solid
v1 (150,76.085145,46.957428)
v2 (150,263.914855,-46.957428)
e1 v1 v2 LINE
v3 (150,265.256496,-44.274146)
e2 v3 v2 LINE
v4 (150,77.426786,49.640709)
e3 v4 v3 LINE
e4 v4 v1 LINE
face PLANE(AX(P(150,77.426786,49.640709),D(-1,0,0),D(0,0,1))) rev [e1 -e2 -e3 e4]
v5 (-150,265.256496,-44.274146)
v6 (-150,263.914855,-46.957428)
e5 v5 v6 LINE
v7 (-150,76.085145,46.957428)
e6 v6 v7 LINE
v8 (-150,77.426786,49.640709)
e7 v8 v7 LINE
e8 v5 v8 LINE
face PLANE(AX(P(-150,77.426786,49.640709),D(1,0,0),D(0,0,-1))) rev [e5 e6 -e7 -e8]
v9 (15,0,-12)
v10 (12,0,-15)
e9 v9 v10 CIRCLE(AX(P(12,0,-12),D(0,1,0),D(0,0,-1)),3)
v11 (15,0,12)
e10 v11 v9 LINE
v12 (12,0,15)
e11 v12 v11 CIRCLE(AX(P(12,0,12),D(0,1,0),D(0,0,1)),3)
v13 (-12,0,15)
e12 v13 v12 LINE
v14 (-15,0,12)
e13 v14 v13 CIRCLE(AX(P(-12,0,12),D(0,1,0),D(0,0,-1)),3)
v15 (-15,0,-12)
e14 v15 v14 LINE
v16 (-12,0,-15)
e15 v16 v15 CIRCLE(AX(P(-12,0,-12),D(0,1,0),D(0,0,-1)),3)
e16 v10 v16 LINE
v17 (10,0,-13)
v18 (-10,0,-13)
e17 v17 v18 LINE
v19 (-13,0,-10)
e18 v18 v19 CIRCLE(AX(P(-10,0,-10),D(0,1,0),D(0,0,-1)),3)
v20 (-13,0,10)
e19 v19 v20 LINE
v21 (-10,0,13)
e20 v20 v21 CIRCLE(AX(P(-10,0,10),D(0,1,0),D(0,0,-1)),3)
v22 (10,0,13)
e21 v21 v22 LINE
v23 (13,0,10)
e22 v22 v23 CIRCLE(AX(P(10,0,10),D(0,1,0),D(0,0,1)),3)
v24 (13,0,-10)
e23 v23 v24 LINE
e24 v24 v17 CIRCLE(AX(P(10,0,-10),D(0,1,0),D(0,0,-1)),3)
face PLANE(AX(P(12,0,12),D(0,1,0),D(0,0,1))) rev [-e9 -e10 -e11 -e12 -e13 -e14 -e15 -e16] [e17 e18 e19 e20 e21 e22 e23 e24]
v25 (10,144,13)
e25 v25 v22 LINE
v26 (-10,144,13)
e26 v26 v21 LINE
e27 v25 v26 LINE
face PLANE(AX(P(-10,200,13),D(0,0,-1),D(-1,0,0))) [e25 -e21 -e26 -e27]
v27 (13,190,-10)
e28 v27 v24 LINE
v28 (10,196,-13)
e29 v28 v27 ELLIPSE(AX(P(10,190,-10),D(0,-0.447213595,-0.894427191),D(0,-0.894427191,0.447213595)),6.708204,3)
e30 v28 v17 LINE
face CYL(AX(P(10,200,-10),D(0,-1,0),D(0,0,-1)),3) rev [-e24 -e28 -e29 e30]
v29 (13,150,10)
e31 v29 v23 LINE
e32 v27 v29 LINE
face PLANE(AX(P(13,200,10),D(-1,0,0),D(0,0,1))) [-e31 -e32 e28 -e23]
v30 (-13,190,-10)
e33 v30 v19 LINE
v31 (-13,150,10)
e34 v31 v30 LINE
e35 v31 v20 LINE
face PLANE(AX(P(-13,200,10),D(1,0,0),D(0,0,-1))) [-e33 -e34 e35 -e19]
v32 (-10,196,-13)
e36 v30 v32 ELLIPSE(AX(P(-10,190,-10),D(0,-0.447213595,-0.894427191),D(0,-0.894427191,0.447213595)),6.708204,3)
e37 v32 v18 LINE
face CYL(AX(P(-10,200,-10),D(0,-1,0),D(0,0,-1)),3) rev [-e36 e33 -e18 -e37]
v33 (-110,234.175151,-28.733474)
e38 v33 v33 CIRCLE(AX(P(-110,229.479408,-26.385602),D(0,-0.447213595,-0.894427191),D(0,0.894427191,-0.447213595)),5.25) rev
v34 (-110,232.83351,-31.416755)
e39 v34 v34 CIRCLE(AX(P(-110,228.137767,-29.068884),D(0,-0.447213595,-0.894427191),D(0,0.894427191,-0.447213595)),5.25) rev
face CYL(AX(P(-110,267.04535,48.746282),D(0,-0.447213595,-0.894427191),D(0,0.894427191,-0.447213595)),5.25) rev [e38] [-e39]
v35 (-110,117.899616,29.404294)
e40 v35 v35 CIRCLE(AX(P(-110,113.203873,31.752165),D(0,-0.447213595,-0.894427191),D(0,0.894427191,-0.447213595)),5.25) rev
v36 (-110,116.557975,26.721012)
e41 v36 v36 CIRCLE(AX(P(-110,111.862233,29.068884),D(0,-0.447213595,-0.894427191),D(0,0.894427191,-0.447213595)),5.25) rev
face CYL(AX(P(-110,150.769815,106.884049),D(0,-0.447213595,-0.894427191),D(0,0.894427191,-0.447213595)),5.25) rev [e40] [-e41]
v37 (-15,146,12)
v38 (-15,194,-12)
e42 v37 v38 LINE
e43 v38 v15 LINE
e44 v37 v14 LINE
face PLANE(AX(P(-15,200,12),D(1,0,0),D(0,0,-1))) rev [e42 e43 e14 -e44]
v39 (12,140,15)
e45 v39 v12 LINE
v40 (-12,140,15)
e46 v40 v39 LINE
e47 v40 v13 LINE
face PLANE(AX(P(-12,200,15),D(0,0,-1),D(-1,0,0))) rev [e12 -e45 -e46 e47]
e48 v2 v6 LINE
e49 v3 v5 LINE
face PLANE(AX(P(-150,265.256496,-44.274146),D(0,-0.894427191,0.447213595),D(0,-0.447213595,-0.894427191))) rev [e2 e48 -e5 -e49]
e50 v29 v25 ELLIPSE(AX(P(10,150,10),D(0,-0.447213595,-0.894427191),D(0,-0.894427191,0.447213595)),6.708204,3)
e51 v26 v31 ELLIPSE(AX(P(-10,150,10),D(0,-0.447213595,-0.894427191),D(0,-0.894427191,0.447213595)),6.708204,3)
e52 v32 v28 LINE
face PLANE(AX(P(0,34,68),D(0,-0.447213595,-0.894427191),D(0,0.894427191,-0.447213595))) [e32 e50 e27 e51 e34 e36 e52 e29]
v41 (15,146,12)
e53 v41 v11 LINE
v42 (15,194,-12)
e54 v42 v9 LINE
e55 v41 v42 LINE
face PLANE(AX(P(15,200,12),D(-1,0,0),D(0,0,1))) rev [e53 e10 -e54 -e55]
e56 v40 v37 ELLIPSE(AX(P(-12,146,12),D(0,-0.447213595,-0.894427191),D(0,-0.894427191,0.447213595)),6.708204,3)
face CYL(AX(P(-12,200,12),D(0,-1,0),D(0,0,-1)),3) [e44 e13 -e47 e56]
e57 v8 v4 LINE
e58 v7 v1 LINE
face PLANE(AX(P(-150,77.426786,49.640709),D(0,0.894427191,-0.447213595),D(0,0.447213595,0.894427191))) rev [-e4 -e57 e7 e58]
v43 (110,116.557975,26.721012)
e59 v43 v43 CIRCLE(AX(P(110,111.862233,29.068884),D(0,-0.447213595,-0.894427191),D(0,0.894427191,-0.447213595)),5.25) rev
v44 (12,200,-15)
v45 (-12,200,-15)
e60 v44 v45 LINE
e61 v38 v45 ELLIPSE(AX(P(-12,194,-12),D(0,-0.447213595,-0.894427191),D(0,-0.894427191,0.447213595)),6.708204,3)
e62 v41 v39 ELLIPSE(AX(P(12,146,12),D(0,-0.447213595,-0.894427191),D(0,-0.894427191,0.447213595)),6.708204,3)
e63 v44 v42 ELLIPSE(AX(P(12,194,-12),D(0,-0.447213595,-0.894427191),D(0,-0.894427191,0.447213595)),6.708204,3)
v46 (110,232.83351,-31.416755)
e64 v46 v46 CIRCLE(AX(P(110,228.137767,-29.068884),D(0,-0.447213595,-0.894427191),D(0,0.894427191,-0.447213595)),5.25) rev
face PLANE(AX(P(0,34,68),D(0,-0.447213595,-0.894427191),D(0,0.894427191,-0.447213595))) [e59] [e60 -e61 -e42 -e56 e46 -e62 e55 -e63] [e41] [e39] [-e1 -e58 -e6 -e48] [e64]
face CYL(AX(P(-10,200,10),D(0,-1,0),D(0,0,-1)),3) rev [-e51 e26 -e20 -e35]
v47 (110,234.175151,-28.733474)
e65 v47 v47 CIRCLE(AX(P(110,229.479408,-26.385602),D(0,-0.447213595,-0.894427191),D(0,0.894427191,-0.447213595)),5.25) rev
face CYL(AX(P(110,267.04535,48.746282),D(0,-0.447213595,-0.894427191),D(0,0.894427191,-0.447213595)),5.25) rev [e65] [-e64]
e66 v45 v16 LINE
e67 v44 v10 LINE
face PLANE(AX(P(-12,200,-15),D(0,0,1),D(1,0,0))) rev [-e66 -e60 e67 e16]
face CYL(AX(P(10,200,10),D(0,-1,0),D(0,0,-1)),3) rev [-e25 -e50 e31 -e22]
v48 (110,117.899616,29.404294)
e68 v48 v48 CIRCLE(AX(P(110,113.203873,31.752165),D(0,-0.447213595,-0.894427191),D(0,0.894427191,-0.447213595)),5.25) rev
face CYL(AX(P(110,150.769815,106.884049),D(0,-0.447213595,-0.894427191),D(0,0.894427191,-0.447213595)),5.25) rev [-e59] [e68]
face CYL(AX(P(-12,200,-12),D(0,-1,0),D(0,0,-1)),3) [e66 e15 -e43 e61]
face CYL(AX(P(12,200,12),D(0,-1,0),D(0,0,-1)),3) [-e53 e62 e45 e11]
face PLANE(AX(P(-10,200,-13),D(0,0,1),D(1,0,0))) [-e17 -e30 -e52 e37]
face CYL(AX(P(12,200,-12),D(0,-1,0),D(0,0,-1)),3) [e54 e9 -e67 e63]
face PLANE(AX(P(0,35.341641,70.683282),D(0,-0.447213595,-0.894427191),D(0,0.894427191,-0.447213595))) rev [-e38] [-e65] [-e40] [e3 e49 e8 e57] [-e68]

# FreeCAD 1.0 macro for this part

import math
import FreeCAD as App
import Part
import Sketcher
Q = App.Units.Quantity

doc = App.newDocument("Part")
params = doc.addObject("Spreadsheet::Sheet", "Params")
for row, (alias, value) in enumerate([
    ("sketch1_radius", "3 mm"),
    ("sketch1_width", "24 mm"),
    ("sketch1_width2", "20 mm"),
    ("pad1_length", "200 mm"),
    ("sketch2_width", "60 mm"),
    ("sketch2_height", "30 mm"),
    ("pocket1_length", "100 mm"),
    ("sketch3_width", "300 mm"),
    ("sketch3_height", "210 mm"),
    ("pad2_length", "3 mm"),
    ("sketch4_diameter", "10.5 mm"),
], start=1):
    params.set(f"A{row}", alias)
    params.set(f"B{row}", "=" + value)
    params.setAlias(f"B{row}", alias)

body = doc.addObject("PartDesign::Body", "Body")

sketch1 = body.newObject("Sketcher::SketchObject", "Sketch")
sketch1.AttachmentSupport = (doc.getObject("XZ_Plane"), [""])
sketch1.MapMode = "FlatFace"
sketch1.addGeometry([
    Part.LineSegment(App.Vector(-12, 15, 0), App.Vector(12, 15, 0)),
    Part.ArcOfCircle(Part.Circle(App.Vector(12, 12, 0), App.Vector(0, 0, 1), 3), math.radians(0), math.radians(90)),
    Part.LineSegment(App.Vector(15, 12, 0), App.Vector(15, -12, 0)),
    Part.ArcOfCircle(Part.Circle(App.Vector(12, -12, 0), App.Vector(0, 0, 1), 3), math.radians(-90), math.radians(0)),
    Part.LineSegment(App.Vector(12, -15, 0), App.Vector(-12, -15, 0)),
    Part.ArcOfCircle(Part.Circle(App.Vector(-12, -12, 0), App.Vector(0, 0, 1), 3), math.radians(180), math.radians(270)),
    Part.LineSegment(App.Vector(-15, -12, 0), App.Vector(-15, 12, 0)),
    Part.ArcOfCircle(Part.Circle(App.Vector(-12, 12, 0), App.Vector(0, 0, 1), 3), math.radians(90), math.radians(180)),
    Part.LineSegment(App.Vector(10, 13, 0), App.Vector(-10, 13, 0)),
    Part.ArcOfCircle(Part.Circle(App.Vector(-10, 10, 0), App.Vector(0, 0, 1), 3), math.radians(90), math.radians(180)),
    Part.LineSegment(App.Vector(-13, 10, 0), App.Vector(-13, -10, 0)),
    Part.ArcOfCircle(Part.Circle(App.Vector(-10, -10, 0), App.Vector(0, 0, 1), 3), math.radians(180), math.radians(270)),
    Part.LineSegment(App.Vector(-10, -13, 0), App.Vector(10, -13, 0)),
    Part.ArcOfCircle(Part.Circle(App.Vector(10, -10, 0), App.Vector(0, 0, 1), 3), math.radians(-90), math.radians(0)),
    Part.LineSegment(App.Vector(13, -10, 0), App.Vector(13, 10, 0)),
    Part.ArcOfCircle(Part.Circle(App.Vector(10, 10, 0), App.Vector(0, 0, 1), 3), math.radians(0), math.radians(90)),
], False)
sketch1.addConstraint([
    Sketcher.Constraint("Tangent", 0, 2, 1, 2),
    Sketcher.Constraint("Tangent", 1, 1, 2, 1),
    Sketcher.Constraint("Tangent", 2, 2, 3, 2),
    Sketcher.Constraint("Tangent", 3, 1, 4, 1),
    Sketcher.Constraint("Tangent", 4, 2, 5, 2),
    Sketcher.Constraint("Tangent", 5, 1, 6, 1),
    Sketcher.Constraint("Tangent", 6, 2, 7, 2),
    Sketcher.Constraint("Tangent", 7, 1, 0, 1),
    Sketcher.Constraint("Tangent", 8, 2, 9, 1),
    Sketcher.Constraint("Tangent", 9, 2, 10, 1),
    Sketcher.Constraint("Tangent", 10, 2, 11, 1),
    Sketcher.Constraint("Tangent", 11, 2, 12, 1),
    Sketcher.Constraint("Tangent", 12, 2, 13, 1),
    Sketcher.Constraint("Tangent", 13, 2, 14, 1),
    Sketcher.Constraint("Tangent", 14, 2, 15, 1),
    Sketcher.Constraint("Tangent", 15, 2, 8, 1),
    Sketcher.Constraint("Horizontal", 0),
    Sketcher.Constraint("Vertical", 2),
    Sketcher.Constraint("Horizontal", 4),
    Sketcher.Constraint("Vertical", 6),
    Sketcher.Constraint("Horizontal", 8),
    Sketcher.Constraint("Vertical", 10),
    Sketcher.Constraint("Horizontal", 12),
    Sketcher.Constraint("Vertical", 14),
    Sketcher.Constraint("Equal", 1, 3),
    Sketcher.Constraint("Equal", 3, 5),
    Sketcher.Constraint("Equal", 5, 7),
    Sketcher.Constraint("Equal", 7, 9),
    Sketcher.Constraint("Equal", 9, 11),
    Sketcher.Constraint("Equal", 11, 13),
    Sketcher.Constraint("Equal", 13, 15),
    Sketcher.Constraint("Symmetric", 1, 3, 5, 3, -1, 1),
    Sketcher.Constraint("Symmetric", 9, 3, 13, 3, -1, 1),
    Sketcher.Constraint("Equal", 4, 2),
    Sketcher.Constraint("Equal", 12, 10),
    Sketcher.Constraint("Radius", 1, Q("3 mm")),
    Sketcher.Constraint("DistanceX", 0, 1, 0, 2, Q("24 mm")),
    Sketcher.Constraint("DistanceX", 8, 2, 8, 1, Q("20 mm")),
])
sketch1.setExpression("Constraints[35]", "Params.sketch1_radius")
sketch1.setExpression("Constraints[36]", "Params.sketch1_width")
sketch1.setExpression("Constraints[37]", "Params.sketch1_width2")
pad1 = body.newObject("PartDesign::Pad", "Pad")
pad1.Profile = sketch1
pad1.setExpression("Length", "Params.pad1_length")
pad1.Reversed = True

sketch2 = body.newObject("Sketcher::SketchObject", "Sketch001")
sketch2.AttachmentSupport = (doc.getObject("YZ_Plane"), [""])
sketch2.MapMode = "FlatFace"
sketch2.AttachmentOffset = App.Placement(App.Vector(0, 0, 15), App.Rotation())
sketch2.addGeometry([
    Part.LineSegment(App.Vector(140, 15, 0), App.Vector(200, -15, 0)),
    Part.LineSegment(App.Vector(200, -15, 0), App.Vector(200, 15, 0)),
    Part.LineSegment(App.Vector(200, 15, 0), App.Vector(140, 15, 0)),
], False)
sketch2.addConstraint([
    Sketcher.Constraint("Coincident", 0, 2, 1, 1),
    Sketcher.Constraint("Coincident", 1, 2, 2, 1),
    Sketcher.Constraint("Coincident", 2, 2, 0, 1),
    Sketcher.Constraint("Vertical", 1),
    Sketcher.Constraint("Horizontal", 2),
    Sketcher.Constraint("DistanceX", 2, 2, 2, 1, Q("60 mm")),
    Sketcher.Constraint("DistanceY", 1, 1, 1, 2, Q("30 mm")),
    Sketcher.Constraint("DistanceX", -1, 1, 0, 2, Q("200 mm")),
    Sketcher.Constraint("DistanceY", 0, 2, -1, 1, Q("15 mm")),
])
sketch2.setExpression("Constraints[5]", "Params.sketch2_width")
sketch2.setExpression("Constraints[6]", "Params.sketch2_height")
pocket1 = body.newObject("PartDesign::Pocket", "Pocket")
pocket1.Profile = sketch2
pocket1.setExpression("Length", "Params.pocket1_length")

sketch3 = body.newObject("Sketcher::SketchObject", "Sketch002")
sketch3.Placement = App.Placement(App.Vector(0, 34, 68), App.Rotation(App.Vector(1, 0, 0), App.Vector(0, 0.894427191, -0.447213595), App.Vector(0, 0.447213595, 0.894427191), "ZXY"))
sketch3.addGeometry([
    Part.LineSegment(App.Vector(-150, 257.052622, 0), App.Vector(-150, 47.052622, 0)),
    Part.LineSegment(App.Vector(-150, 47.052622, 0), App.Vector(150, 47.052622, 0)),
    Part.LineSegment(App.Vector(150, 47.052622, 0), App.Vector(150, 257.052622, 0)),
    Part.LineSegment(App.Vector(150, 257.052622, 0), App.Vector(-150, 257.052622, 0)),
], False)
sketch3.addConstraint([
    Sketcher.Constraint("Coincident", 0, 2, 1, 1),
    Sketcher.Constraint("Coincident", 1, 2, 2, 1),
    Sketcher.Constraint("Coincident", 2, 2, 3, 1),
    Sketcher.Constraint("Coincident", 3, 2, 0, 1),
    Sketcher.Constraint("Vertical", 0),
    Sketcher.Constraint("Horizontal", 1),
    Sketcher.Constraint("Vertical", 2),
    Sketcher.Constraint("Horizontal", 3),
    Sketcher.Constraint("DistanceX", 1, 1, 1, 2, Q("300 mm")),
    Sketcher.Constraint("DistanceY", 0, 2, 0, 1, Q("210 mm")),
    Sketcher.Constraint("DistanceX", 0, 2, -1, 1, Q("150 mm")),
    Sketcher.Constraint("DistanceY", -1, 1, 0, 2, Q("47.052622 mm")),
])
sketch3.setExpression("Constraints[8]", "Params.sketch3_width")
sketch3.setExpression("Constraints[9]", "Params.sketch3_height")
pad2 = body.newObject("PartDesign::Pad", "Pad001")
pad2.Profile = sketch3
pad2.setExpression("Length", "Params.pad2_length")

sketch4 = body.newObject("Sketcher::SketchObject", "Sketch003")
sketch4.Placement = App.Placement(App.Vector(0, 34, 68), App.Rotation(App.Vector(1, 0, 0), App.Vector(0, 0.894427191, -0.447213595), App.Vector(0, 0.447213595, 0.894427191), "ZXY"))
sketch4.addGeometry([
    Part.Circle(App.Vector(-110, 217.052622, 0), App.Vector(0, 0, 1), 5.25),
    Part.Circle(App.Vector(110, 217.052622, 0), App.Vector(0, 0, 1), 5.25),
    Part.Circle(App.Vector(110, 87.052622, 0), App.Vector(0, 0, 1), 5.25),
    Part.Circle(App.Vector(-110, 87.052622, 0), App.Vector(0, 0, 1), 5.25),
], False)
sketch4.addConstraint([
    Sketcher.Constraint("Equal", 0, 1),
    Sketcher.Constraint("Equal", 1, 2),
    Sketcher.Constraint("Equal", 2, 3),
    Sketcher.Constraint("Symmetric", 0, 3, 1, 3, -2),
    Sketcher.Constraint("Symmetric", 2, 3, 3, 3, -2),
    Sketcher.Constraint("Vertical", 1, 3, 2, 3),
    Sketcher.Constraint("Diameter", 0, Q("10.5 mm")),
    Sketcher.Constraint("DistanceX", 0, 3, -1, 1, Q("110 mm")),
    Sketcher.Constraint("DistanceY", 2, 3, 1, 3, Q("130 mm")),
    Sketcher.Constraint("DistanceY", -1, 1, 0, 3, Q("217.052622 mm")),
])
sketch4.setExpression("Constraints[6]", "Params.sketch4_diameter")
pocket2 = body.newObject("PartDesign::Pocket", "Pocket001")
pocket2.Profile = sketch4
pocket2.Type = "ThroughAll"
pocket2.Midplane = True

doc.recompute()
